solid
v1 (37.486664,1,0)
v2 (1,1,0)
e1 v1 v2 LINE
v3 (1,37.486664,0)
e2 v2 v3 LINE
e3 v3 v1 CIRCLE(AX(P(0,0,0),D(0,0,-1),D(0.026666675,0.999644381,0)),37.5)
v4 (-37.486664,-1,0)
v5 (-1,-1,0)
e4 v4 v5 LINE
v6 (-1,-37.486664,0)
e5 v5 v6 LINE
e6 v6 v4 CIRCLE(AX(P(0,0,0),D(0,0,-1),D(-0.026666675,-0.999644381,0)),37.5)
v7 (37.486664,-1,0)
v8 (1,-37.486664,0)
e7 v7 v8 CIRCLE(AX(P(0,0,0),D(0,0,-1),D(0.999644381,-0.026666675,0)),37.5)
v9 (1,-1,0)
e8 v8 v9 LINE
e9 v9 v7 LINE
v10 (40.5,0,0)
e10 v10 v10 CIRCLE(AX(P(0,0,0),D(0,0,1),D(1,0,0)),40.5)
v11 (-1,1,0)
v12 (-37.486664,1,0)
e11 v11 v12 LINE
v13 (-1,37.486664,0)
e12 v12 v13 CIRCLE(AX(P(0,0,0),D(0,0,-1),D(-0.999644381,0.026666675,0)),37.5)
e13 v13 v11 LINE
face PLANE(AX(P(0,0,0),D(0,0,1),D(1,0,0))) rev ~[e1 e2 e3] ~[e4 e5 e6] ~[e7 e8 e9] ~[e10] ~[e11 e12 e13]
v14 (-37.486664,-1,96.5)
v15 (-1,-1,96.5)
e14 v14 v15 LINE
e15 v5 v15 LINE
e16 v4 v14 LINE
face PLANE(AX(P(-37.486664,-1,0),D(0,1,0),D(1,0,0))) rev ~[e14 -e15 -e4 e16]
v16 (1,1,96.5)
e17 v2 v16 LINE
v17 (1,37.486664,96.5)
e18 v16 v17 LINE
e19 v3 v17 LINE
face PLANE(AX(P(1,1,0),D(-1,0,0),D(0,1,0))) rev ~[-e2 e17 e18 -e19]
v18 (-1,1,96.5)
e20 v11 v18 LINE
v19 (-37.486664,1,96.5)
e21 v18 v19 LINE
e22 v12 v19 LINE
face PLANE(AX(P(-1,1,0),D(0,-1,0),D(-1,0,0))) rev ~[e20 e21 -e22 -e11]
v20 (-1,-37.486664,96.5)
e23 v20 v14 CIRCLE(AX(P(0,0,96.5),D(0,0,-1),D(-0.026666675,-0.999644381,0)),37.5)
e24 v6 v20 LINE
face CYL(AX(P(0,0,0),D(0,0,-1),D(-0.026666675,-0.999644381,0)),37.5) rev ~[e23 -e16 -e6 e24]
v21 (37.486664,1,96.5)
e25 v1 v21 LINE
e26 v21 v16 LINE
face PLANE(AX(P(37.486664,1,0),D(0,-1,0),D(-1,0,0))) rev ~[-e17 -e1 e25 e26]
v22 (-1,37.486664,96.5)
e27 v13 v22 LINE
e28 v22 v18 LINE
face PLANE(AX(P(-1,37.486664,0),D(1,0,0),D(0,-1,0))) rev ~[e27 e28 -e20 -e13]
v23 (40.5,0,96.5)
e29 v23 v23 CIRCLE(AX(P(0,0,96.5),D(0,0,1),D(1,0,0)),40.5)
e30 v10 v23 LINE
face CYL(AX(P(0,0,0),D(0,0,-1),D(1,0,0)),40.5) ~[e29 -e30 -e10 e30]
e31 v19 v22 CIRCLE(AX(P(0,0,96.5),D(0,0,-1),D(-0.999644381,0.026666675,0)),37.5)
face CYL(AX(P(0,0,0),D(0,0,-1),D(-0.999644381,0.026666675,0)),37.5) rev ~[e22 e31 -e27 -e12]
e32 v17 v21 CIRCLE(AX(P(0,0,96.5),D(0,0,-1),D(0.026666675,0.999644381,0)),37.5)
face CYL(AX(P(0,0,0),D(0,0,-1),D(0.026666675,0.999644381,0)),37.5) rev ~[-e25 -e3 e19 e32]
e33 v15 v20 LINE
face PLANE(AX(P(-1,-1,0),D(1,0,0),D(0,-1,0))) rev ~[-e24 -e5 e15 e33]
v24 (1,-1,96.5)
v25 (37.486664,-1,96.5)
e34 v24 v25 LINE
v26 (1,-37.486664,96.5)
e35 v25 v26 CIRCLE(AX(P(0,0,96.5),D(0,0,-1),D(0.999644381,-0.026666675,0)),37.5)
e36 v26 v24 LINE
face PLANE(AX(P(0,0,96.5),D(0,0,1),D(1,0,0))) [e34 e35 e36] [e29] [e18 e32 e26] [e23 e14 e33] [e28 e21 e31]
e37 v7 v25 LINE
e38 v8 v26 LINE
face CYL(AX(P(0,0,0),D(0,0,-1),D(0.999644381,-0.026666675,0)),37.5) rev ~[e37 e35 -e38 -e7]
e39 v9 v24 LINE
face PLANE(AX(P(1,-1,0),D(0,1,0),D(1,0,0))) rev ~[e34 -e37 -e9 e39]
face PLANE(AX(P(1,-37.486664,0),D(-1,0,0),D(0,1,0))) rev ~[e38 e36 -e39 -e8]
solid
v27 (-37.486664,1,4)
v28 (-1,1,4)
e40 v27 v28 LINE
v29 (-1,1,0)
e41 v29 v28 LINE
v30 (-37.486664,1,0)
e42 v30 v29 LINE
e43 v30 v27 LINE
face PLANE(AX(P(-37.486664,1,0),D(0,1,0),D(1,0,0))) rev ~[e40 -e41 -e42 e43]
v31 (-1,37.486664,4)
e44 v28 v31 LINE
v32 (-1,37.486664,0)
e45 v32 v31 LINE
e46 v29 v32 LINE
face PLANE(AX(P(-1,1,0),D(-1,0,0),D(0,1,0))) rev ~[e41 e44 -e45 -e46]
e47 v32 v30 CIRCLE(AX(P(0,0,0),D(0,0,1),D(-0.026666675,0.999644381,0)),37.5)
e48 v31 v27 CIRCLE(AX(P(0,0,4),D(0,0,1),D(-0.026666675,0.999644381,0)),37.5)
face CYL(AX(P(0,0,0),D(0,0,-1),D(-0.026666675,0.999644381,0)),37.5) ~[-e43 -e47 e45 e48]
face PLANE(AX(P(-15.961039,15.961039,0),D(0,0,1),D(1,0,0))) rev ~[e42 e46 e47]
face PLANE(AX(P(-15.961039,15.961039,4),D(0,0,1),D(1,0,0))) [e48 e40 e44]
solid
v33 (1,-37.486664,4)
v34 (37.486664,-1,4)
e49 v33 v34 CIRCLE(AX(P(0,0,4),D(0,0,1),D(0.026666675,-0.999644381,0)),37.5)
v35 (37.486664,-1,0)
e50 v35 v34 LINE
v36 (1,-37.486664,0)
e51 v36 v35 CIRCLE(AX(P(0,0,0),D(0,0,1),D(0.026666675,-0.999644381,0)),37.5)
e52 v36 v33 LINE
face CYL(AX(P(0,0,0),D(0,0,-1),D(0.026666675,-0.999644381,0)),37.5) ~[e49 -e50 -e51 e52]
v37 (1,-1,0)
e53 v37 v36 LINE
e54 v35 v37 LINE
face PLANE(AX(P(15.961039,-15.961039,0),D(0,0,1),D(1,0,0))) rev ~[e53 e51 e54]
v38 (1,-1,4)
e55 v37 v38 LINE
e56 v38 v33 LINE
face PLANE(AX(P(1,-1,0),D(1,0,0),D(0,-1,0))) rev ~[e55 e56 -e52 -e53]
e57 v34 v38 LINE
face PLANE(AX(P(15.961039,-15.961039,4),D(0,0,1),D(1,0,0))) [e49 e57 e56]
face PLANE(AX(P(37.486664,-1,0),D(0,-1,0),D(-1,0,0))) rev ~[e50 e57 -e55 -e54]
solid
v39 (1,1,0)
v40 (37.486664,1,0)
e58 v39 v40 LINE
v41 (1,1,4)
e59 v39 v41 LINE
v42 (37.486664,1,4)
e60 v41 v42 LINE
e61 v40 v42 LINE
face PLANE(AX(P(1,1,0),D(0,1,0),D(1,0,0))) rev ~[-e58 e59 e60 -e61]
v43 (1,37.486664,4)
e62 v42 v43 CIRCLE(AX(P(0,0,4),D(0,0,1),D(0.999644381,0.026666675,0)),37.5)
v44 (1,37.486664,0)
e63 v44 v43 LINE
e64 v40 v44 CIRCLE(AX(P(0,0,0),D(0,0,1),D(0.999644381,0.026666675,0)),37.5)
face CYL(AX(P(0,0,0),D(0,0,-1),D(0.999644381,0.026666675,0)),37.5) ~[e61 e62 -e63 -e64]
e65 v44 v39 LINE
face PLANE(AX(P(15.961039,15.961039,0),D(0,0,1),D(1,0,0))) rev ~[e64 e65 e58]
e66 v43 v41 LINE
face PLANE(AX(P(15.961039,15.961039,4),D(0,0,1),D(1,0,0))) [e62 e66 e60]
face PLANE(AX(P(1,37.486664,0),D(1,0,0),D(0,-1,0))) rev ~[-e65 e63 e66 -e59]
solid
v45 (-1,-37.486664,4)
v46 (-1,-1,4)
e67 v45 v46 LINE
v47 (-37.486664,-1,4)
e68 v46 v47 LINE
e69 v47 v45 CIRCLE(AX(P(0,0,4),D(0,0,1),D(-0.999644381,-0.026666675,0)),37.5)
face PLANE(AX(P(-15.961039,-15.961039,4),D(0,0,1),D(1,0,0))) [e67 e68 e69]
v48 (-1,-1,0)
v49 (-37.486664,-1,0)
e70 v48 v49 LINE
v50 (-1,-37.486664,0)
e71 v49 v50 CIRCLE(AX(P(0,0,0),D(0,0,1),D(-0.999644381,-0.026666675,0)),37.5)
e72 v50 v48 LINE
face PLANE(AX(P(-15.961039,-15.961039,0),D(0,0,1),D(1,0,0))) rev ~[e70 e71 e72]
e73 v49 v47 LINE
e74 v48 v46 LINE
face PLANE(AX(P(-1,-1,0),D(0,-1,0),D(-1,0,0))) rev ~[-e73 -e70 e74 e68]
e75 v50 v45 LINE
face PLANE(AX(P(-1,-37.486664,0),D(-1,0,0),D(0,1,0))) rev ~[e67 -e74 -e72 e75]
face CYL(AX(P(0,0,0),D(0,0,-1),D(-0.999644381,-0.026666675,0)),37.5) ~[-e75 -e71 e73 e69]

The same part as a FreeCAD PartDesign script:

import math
import FreeCAD as App
import Part
import Sketcher

V = App.Vector
Q = App.Units.Quantity

doc = App.newDocument("Part")
body = doc.addObject("PartDesign::Body", "Body")
body.AllowCompound = True

# Sketch on XY plane
sketch1 = doc.addObject("Sketcher::SketchObject", "Sketch")
body.addObject(sketch1)
sketch1.AttachmentSupport = (doc.XY_Plane, [""])
sketch1.MapMode = "FlatFace"
sketch1.addGeometry(Part.LineSegment(V(-1, -1, 0), V(-37, -1, 0)), False)
sketch1.addGeometry(Part.ArcOfCircle(Part.Circle(V(0, 0, 0), V(0, 0, 1), 38), math.radians(-178), math.radians(-92)), False)
sketch1.addGeometry(Part.LineSegment(V(-1, -37, 0), V(-1, -1, 0)), False)
sketch1.addGeometry(Part.ArcOfCircle(Part.Circle(V(0, 0, 0), V(0, 0, 1), 38), math.radians(92), math.radians(178)), False)
sketch1.addGeometry(Part.LineSegment(V(-37, 1, 0), V(-1, 1, 0)), False)
sketch1.addGeometry(Part.LineSegment(V(-1, 1, 0), V(-1, 37, 0)), False)
sketch1.addGeometry(Part.ArcOfCircle(Part.Circle(V(0, 0, 0), V(0, 0, 1), 38), math.radians(2), math.radians(88)), False)
sketch1.addGeometry(Part.LineSegment(V(1, 37, 0), V(1, 1, 0)), False)
sketch1.addGeometry(Part.LineSegment(V(1, 1, 0), V(37, 1, 0)), False)
sketch1.addGeometry(Part.LineSegment(V(37, -1, 0), V(1, -1, 0)), False)
sketch1.addGeometry(Part.LineSegment(V(1, -1, 0), V(1, -37, 0)), False)
sketch1.addGeometry(Part.ArcOfCircle(Part.Circle(V(0, 0, 0), V(0, 0, 1), 38), math.radians(-88), math.radians(-2)), False)
sketch1.addConstraint(Sketcher.Constraint("Coincident", 0, 2, 1, 1))
sketch1.addConstraint(Sketcher.Constraint("Coincident", 1, 2, 2, 1))
sketch1.addConstraint(Sketcher.Constraint("Coincident", 2, 2, 0, 1))
sketch1.addConstraint(Sketcher.Constraint("Coincident", 3, 2, 4, 1))
sketch1.addConstraint(Sketcher.Constraint("Coincident", 4, 2, 5, 1))
sketch1.addConstraint(Sketcher.Constraint("Coincident", 5, 2, 3, 1))
sketch1.addConstraint(Sketcher.Constraint("Coincident", 6, 2, 7, 1))
sketch1.addConstraint(Sketcher.Constraint("Coincident", 7, 2, 8, 1))
sketch1.addConstraint(Sketcher.Constraint("Coincident", 8, 2, 6, 1))
sketch1.addConstraint(Sketcher.Constraint("Coincident", 9, 2, 10, 1))
sketch1.addConstraint(Sketcher.Constraint("Coincident", 10, 2, 11, 1))
sketch1.addConstraint(Sketcher.Constraint("Coincident", 11, 2, 9, 1))
sketch1.addConstraint(Sketcher.Constraint("Horizontal", 0))
sketch1.addConstraint(Sketcher.Constraint("Vertical", 2))
sketch1.addConstraint(Sketcher.Constraint("Horizontal", 4))
sketch1.addConstraint(Sketcher.Constraint("Vertical", 5))
sketch1.addConstraint(Sketcher.Constraint("Vertical", 7))
sketch1.addConstraint(Sketcher.Constraint("Horizontal", 8))
sketch1.addConstraint(Sketcher.Constraint("Horizontal", 9))
sketch1.addConstraint(Sketcher.Constraint("Vertical", 10))
sketch1.addConstraint(Sketcher.Constraint("Coincident", 1, 3, -1, 1))
sketch1.addConstraint(Sketcher.Constraint("Coincident", 3, 3, -1, 1))
sketch1.addConstraint(Sketcher.Constraint("Coincident", 6, 3, -1, 1))
sketch1.addConstraint(Sketcher.Constraint("Coincident", 11, 3, -1, 1))
sketch1.addConstraint(Sketcher.Constraint("Equal", 1, 3))
sketch1.addConstraint(Sketcher.Constraint("Equal", 3, 6))
sketch1.addConstraint(Sketcher.Constraint("Equal", 6, 11))
sketch1.addConstraint(Sketcher.Constraint("Symmetric", 2, 2, 7, 2, -1, 1))
sketch1.addConstraint(Sketcher.Constraint("Symmetric", 4, 2, 9, 2, -1, 1))
sketch1.addConstraint(Sketcher.Constraint("Symmetric", 4, 2, 7, 2, -2))
sketch1.addConstraint(Sketcher.Constraint("Equal", 9, 2))
sketch1.addConstraint(Sketcher.Constraint("Radius", 1, Q("37.5 mm")))
sketch1.addConstraint(Sketcher.Constraint("DistanceY", 0, 2, -1, 1, Q("1 mm")))
pad1 = doc.addObject("PartDesign::Pad", "Pad")
body.addObject(pad1)
pad1.Profile = sketch1
pad1.Length = 4
body2 = doc.addObject("PartDesign::Body", "Body001")

# Sketch on XY plane
sketch2 = doc.addObject("Sketcher::SketchObject", "Sketch001")
body2.addObject(sketch2)
sketch2.AttachmentSupport = (doc.getObject("XY_Plane001"), [""])
sketch2.MapMode = "FlatFace"
sketch2.addGeometry(Part.Circle(V(0, 0, 0), V(0, 0, 1), 40), False)
sketch2.addGeometry(Part.LineSegment(V(-1, -1, 0), V(-1, -37, 0)), False)
sketch2.addGeometry(Part.ArcOfCircle(Part.Circle(V(0, 0, 0), V(0, 0, 1), 38), math.radians(-178), math.radians(-92)), False)
sketch2.addGeometry(Part.LineSegment(V(-37, -1, 0), V(-1, -1, 0)), False)
sketch2.addGeometry(Part.ArcOfCircle(Part.Circle(V(0, 0, 0), V(0, 0, 1), 38), math.radians(-88), math.radians(-2)), False)
sketch2.addGeometry(Part.LineSegment(V(1, -37, 0), V(1, -1, 0)), False)
sketch2.addGeometry(Part.LineSegment(V(1, -1, 0), V(37, -1, 0)), False)
sketch2.addGeometry(Part.LineSegment(V(-1, 37, 0), V(-1, 1, 0)), False)
sketch2.addGeometry(Part.LineSegment(V(-1, 1, 0), V(-37, 1, 0)), False)
sketch2.addGeometry(Part.ArcOfCircle(Part.Circle(V(0, 0, 0), V(0, 0, 1), 38), math.radians(92), math.radians(178)), False)
sketch2.addGeometry(Part.LineSegment(V(37, 1, 0), V(1, 1, 0)), False)
sketch2.addGeometry(Part.LineSegment(V(1, 1, 0), V(1, 37, 0)), False)
sketch2.addGeometry(Part.ArcOfCircle(Part.Circle(V(0, 0, 0), V(0, 0, 1), 38), math.radians(2), math.radians(88)), False)
sketch2.addConstraint(Sketcher.Constraint("Coincident", 1, 2, 2, 2))
sketch2.addConstraint(Sketcher.Constraint("Coincident", 2, 1, 3, 1))
sketch2.addConstraint(Sketcher.Constraint("Coincident", 3, 2, 1, 1))
sketch2.addConstraint(Sketcher.Constraint("Coincident", 4, 1, 5, 1))
sketch2.addConstraint(Sketcher.Constraint("Coincident", 5, 2, 6, 1))
sketch2.addConstraint(Sketcher.Constraint("Coincident", 6, 2, 4, 2))
sketch2.addConstraint(Sketcher.Constraint("Coincident", 7, 2, 8, 1))
sketch2.addConstraint(Sketcher.Constraint("Coincident", 8, 2, 9, 2))
sketch2.addConstraint(Sketcher.Constraint("Coincident", 9, 1, 7, 1))
sketch2.addConstraint(Sketcher.Constraint("Coincident", 10, 2, 11, 1))
sketch2.addConstraint(Sketcher.Constraint("Coincident", 11, 2, 12, 2))
sketch2.addConstraint(Sketcher.Constraint("Coincident", 12, 1, 10, 1))
sketch2.addConstraint(Sketcher.Constraint("Vertical", 1))
sketch2.addConstraint(Sketcher.Constraint("Horizontal", 3))
sketch2.addConstraint(Sketcher.Constraint("Vertical", 5))
sketch2.addConstraint(Sketcher.Constraint("Horizontal", 6))
sketch2.addConstraint(Sketcher.Constraint("Vertical", 7))
sketch2.addConstraint(Sketcher.Constraint("Horizontal", 8))
sketch2.addConstraint(Sketcher.Constraint("Horizontal", 10))
sketch2.addConstraint(Sketcher.Constraint("Vertical", 11))
sketch2.addConstraint(Sketcher.Constraint("Coincident", 0, 3, -1, 1))
sketch2.addConstraint(Sketcher.Constraint("Coincident", 2, 3, -1, 1))
sketch2.addConstraint(Sketcher.Constraint("Coincident", 4, 3, -1, 1))
sketch2.addConstraint(Sketcher.Constraint("Coincident", 9, 3, -1, 1))
sketch2.addConstraint(Sketcher.Constraint("Coincident", 12, 3, -1, 1))
sketch2.addConstraint(Sketcher.Constraint("Equal", 2, 4))
sketch2.addConstraint(Sketcher.Constraint("Equal", 4, 9))
sketch2.addConstraint(Sketcher.Constraint("Equal", 9, 12))
sketch2.addConstraint(Sketcher.Constraint("Symmetric", 5, 2, 7, 2, -1, 1))
sketch2.addConstraint(Sketcher.Constraint("Symmetric", 3, 2, 10, 2, -1, 1))
sketch2.addConstraint(Sketcher.Constraint("Symmetric", 3, 2, 5, 2, -2))
sketch2.addConstraint(Sketcher.Constraint("Equal", 10, 1))
sketch2.addConstraint(Sketcher.Constraint("Diameter", 0, Q("81 mm")))
sketch2.addConstraint(Sketcher.Constraint("Radius", 2, Q("37.5 mm")))
sketch2.addConstraint(Sketcher.Constraint("DistanceX", 1, 2, -1, 1, Q("1 mm")))
pad2 = doc.addObject("PartDesign::Pad", "Pad001")
body2.addObject(pad2)
pad2.Profile = sketch2
pad2.Length = 96.5

doc.recompute()
